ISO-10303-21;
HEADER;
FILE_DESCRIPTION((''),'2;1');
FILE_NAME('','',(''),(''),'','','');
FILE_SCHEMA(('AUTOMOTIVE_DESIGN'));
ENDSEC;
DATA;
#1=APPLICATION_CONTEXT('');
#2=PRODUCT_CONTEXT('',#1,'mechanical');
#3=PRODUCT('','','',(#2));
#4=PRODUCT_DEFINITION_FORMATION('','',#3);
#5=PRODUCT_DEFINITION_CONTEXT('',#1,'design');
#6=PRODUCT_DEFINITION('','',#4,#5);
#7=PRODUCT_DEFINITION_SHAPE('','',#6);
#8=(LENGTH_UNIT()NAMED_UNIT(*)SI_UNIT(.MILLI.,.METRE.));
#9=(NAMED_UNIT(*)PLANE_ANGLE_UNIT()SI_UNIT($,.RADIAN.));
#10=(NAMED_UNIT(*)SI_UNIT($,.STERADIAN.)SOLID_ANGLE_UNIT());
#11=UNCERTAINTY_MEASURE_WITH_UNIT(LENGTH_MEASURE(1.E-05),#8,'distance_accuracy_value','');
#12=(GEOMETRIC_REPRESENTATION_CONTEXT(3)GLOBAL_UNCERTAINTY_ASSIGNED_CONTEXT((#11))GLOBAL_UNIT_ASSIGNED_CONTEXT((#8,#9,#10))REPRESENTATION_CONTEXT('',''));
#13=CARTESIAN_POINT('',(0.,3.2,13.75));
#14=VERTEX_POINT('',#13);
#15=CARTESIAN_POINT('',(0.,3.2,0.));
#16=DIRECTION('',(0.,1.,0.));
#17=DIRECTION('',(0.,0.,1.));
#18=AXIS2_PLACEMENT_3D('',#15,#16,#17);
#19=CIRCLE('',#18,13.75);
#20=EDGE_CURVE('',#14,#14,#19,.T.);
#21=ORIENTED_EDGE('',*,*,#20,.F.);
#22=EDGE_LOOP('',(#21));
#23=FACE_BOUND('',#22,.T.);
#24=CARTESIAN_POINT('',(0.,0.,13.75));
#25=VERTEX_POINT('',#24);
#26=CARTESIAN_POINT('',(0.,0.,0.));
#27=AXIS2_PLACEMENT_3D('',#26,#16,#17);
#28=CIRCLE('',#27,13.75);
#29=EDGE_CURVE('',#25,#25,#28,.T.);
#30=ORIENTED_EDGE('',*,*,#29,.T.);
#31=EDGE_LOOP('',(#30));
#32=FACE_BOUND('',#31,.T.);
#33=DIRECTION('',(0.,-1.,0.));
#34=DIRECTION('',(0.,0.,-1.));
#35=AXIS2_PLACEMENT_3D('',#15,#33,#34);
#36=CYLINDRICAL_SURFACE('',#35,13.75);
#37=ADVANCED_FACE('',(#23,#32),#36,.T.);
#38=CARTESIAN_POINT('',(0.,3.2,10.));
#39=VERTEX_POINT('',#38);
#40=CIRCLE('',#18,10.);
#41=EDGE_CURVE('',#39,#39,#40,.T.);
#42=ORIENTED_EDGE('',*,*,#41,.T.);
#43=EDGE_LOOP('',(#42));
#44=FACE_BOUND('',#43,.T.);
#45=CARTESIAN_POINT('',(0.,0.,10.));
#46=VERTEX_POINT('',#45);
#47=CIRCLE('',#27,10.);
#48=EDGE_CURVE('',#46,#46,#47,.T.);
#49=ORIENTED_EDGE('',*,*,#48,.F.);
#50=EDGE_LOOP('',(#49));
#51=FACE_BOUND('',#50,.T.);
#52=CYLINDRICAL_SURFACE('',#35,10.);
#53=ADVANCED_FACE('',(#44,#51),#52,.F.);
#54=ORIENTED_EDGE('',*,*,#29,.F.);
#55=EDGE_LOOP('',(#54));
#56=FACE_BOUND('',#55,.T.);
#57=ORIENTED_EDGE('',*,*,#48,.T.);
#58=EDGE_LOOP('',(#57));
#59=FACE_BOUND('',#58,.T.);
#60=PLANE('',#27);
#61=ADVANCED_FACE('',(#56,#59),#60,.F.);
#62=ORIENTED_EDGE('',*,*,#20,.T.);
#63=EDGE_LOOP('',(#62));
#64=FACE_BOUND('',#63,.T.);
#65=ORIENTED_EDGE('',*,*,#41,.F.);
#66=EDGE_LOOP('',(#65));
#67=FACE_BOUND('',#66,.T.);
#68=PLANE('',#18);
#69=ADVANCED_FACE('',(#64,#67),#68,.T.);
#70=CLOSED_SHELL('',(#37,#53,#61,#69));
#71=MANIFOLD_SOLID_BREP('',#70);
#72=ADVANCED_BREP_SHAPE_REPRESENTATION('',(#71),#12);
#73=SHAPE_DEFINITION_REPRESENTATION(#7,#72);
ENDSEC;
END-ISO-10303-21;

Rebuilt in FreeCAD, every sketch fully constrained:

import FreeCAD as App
import Part
import Sketcher
from FreeCAD import Vector

doc = App.newDocument("Part")
params = doc.addObject("Spreadsheet::Sheet", "Params")
for row, (alias, value) in enumerate([
    ("sketch1_diameter", "20 mm"),
    ("sketch1_diameter2", "27.5 mm"),
    ("pad1_length", "3.2 mm"),
], start=1):
    params.set(f"A{row}", alias)
    params.set(f"B{row}", "=" + value)
    params.setAlias(f"B{row}", alias)

body = doc.addObject("PartDesign::Body", "Body")

# Sketch on XZ plane
sketch1 = body.newObject("Sketcher::SketchObject", "Sketch")
sketch1.AttachmentSupport = (doc.getObject("XZ_Plane"), [""])
sketch1.MapMode = "FlatFace"
sketch1.addGeometry(Part.Circle(Vector(0, 0, 0), Vector(0, 0, 1), 14), False)
sketch1.addGeometry(Part.Circle(Vector(0, 0, 0), Vector(0, 0, 1), 10), False)
sketch1.addConstraint(Sketcher.Constraint("Coincident", 0, 3, -1, 1))
sketch1.addConstraint(Sketcher.Constraint("Coincident", 1, 3, -1, 1))
sketch1.addConstraint(Sketcher.Constraint("Diameter", 1, 20.0))
sketch1.addConstraint(Sketcher.Constraint("Diameter", 0, 27.5))
sketch1.setExpression("Constraints[2]", "Params.sketch1_diameter")
sketch1.setExpression("Constraints[3]", "Params.sketch1_diameter2")
pad1 = body.newObject("PartDesign::Pad", "Pad")
pad1.Profile = sketch1
pad1.setExpression("Length", "Params.pad1_length")
pad1.Reversed = True

doc.recompute()
